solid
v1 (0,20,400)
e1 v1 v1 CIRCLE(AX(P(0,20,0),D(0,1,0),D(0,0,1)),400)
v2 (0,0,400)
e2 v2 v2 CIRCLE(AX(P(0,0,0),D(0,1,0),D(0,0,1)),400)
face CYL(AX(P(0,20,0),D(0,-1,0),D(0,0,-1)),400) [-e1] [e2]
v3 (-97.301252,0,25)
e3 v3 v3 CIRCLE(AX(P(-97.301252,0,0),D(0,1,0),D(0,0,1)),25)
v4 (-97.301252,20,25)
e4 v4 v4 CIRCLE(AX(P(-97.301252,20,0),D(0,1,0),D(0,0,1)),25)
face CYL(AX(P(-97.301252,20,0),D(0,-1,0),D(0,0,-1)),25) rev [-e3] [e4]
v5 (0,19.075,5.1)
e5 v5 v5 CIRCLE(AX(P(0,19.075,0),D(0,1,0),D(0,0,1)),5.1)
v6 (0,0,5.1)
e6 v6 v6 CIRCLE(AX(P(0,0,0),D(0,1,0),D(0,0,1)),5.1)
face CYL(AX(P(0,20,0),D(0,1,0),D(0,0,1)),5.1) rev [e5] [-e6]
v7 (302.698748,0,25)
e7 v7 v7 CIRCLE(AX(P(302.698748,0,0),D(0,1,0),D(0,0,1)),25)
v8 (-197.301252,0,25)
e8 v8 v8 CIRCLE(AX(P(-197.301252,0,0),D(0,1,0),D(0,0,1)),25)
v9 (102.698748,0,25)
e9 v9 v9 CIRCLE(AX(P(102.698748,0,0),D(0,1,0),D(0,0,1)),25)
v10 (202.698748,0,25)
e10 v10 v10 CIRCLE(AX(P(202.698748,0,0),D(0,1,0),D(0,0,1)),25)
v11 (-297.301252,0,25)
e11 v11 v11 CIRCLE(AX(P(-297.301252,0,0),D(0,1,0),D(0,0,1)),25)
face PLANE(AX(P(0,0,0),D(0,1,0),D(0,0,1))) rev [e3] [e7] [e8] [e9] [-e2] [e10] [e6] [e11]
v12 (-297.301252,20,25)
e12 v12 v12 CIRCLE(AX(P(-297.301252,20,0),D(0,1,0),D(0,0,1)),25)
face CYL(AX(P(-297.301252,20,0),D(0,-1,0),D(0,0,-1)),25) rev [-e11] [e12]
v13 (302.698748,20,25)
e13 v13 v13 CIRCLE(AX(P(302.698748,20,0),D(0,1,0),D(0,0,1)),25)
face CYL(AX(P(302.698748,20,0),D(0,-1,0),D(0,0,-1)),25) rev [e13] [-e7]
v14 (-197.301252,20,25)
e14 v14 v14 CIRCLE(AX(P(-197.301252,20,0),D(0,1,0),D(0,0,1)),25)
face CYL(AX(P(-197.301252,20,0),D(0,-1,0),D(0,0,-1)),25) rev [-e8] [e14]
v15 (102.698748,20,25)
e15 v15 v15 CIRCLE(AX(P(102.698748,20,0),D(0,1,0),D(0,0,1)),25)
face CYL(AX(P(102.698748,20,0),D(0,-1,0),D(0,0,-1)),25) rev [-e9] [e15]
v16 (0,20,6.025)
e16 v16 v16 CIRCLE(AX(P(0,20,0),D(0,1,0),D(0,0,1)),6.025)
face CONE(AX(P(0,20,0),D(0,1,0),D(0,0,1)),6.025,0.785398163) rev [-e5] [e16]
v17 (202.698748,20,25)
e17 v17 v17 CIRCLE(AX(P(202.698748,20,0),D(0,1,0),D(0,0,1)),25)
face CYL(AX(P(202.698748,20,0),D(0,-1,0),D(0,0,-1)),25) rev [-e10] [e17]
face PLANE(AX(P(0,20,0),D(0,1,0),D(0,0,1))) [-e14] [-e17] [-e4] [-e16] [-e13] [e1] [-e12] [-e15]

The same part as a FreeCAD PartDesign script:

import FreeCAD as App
import Part
import Sketcher
from FreeCAD import Vector

doc = App.newDocument("Part")
body = doc.addObject("PartDesign::Body", "Body")

# Sketch on XZ plane
sketch1 = body.newObject("Sketcher::SketchObject", "Sketch")
sketch1.AttachmentSupport = (doc.getObject("XZ_Plane"), [""])
sketch1.MapMode = "FlatFace"
sketch1.addGeometry(Part.Circle(Vector(0, 0, 0), Vector(0, 0, 1), 400), False)
sketch1.addConstraint(Sketcher.Constraint("Coincident", 0, 3, -1, 1))
sketch1.addConstraint(Sketcher.Constraint("Diameter", 0, 800.0))
pad1 = body.newObject("PartDesign::Pad", "Pad")
pad1.Profile = sketch1
pad1.Length = 20
pad1.Reversed = True

# Sketch on XZ plane
sketch2 = body.newObject("Sketcher::SketchObject", "Sketch001")
sketch2.AttachmentSupport = (doc.getObject("XZ_Plane"), [""])
sketch2.MapMode = "FlatFace"
sketch2.addGeometry(Part.Circle(Vector(103, 0, 0), Vector(0, 0, 1), 25), False)
sketch2.addGeometry(Part.Circle(Vector(203, 0, 0), Vector(0, 0, 1), 25), False)
sketch2.addGeometry(Part.Circle(Vector(303, 0, 0), Vector(0, 0, 1), 25), False)
sketch2.addGeometry(Part.Circle(Vector(-97, 0, 0), Vector(0, 0, 1), 25), False)
sketch2.addGeometry(Part.Circle(Vector(-197, 0, 0), Vector(0, 0, 1), 25), False)
sketch2.addGeometry(Part.Circle(Vector(-297, 0, 0), Vector(0, 0, 1), 25), False)
sketch2.addConstraint(Sketcher.Constraint("Equal", 0, 1))
sketch2.addConstraint(Sketcher.Constraint("Equal", 1, 2))
sketch2.addConstraint(Sketcher.Constraint("Equal", 2, 3))
sketch2.addConstraint(Sketcher.Constraint("Equal", 3, 4))
sketch2.addConstraint(Sketcher.Constraint("Equal", 4, 5))
sketch2.addConstraint(Sketcher.Constraint("PointOnObject", 0, 3, -1))
sketch2.addConstraint(Sketcher.Constraint("PointOnObject", 1, 3, -1))
sketch2.addConstraint(Sketcher.Constraint("PointOnObject", 2, 3, -1))
sketch2.addConstraint(Sketcher.Constraint("PointOnObject", 3, 3, -1))
sketch2.addConstraint(Sketcher.Constraint("PointOnObject", 4, 3, -1))
sketch2.addConstraint(Sketcher.Constraint("PointOnObject", 5, 3, -1))
sketch2.addConstraint(Sketcher.Constraint("Diameter", 0, 50.0))
sketch2.addConstraint(Sketcher.Constraint("DistanceX", 0, 3, 1, 3, 100.0))
sketch2.addConstraint(Sketcher.Constraint("DistanceX", 1, 3, 2, 3, 100.0))
sketch2.addConstraint(Sketcher.Constraint("DistanceX", 3, 3, 0, 3, 200.0))
sketch2.addConstraint(Sketcher.Constraint("DistanceX", 4, 3, 3, 3, 100.0))
sketch2.addConstraint(Sketcher.Constraint("DistanceX", 5, 3, 4, 3, 100.0))
sketch2.addConstraint(Sketcher.Constraint("DistanceX", -1, 1, 0, 3, 102.698748))
pocket1 = body.newObject("PartDesign::Pocket", "Pocket")
pocket1.Profile = sketch2
pocket1.Length = 20

# Sketch on XZ plane
sketch3 = body.newObject("Sketcher::SketchObject", "Sketch002")
sketch3.AttachmentSupport = (doc.getObject("XZ_Plane"), [""])
sketch3.MapMode = "FlatFace"
sketch3.AttachmentOffset = App.Placement(Vector(0, 0, -20), App.Rotation())
sketch3.addGeometry(Part.Circle(Vector(0, 0, 0), Vector(0, 0, 1), 5), False)
sketch3.addConstraint(Sketcher.Constraint("Coincident", 0, 3, -1, 1))
sketch3.addConstraint(Sketcher.Constraint("Diameter", 0, 10.2))
doc.recompute()
hole = body.newObject("PartDesign::Hole", "Hole")
hole.Profile = sketch3
hole.ThreadType = "None"
hole.Diameter = 10.2
hole.DepthType = "Dimension"
hole.Depth = 32.75
hole.DrillPoint = "Angled"
hole.DrillPointAngle = 118
hole.HoleCutType = "Countersink"
hole.HoleCutDiameter = 12.05
hole.HoleCutCountersinkAngle = 90
hole.Reversed = True

doc.recompute()
